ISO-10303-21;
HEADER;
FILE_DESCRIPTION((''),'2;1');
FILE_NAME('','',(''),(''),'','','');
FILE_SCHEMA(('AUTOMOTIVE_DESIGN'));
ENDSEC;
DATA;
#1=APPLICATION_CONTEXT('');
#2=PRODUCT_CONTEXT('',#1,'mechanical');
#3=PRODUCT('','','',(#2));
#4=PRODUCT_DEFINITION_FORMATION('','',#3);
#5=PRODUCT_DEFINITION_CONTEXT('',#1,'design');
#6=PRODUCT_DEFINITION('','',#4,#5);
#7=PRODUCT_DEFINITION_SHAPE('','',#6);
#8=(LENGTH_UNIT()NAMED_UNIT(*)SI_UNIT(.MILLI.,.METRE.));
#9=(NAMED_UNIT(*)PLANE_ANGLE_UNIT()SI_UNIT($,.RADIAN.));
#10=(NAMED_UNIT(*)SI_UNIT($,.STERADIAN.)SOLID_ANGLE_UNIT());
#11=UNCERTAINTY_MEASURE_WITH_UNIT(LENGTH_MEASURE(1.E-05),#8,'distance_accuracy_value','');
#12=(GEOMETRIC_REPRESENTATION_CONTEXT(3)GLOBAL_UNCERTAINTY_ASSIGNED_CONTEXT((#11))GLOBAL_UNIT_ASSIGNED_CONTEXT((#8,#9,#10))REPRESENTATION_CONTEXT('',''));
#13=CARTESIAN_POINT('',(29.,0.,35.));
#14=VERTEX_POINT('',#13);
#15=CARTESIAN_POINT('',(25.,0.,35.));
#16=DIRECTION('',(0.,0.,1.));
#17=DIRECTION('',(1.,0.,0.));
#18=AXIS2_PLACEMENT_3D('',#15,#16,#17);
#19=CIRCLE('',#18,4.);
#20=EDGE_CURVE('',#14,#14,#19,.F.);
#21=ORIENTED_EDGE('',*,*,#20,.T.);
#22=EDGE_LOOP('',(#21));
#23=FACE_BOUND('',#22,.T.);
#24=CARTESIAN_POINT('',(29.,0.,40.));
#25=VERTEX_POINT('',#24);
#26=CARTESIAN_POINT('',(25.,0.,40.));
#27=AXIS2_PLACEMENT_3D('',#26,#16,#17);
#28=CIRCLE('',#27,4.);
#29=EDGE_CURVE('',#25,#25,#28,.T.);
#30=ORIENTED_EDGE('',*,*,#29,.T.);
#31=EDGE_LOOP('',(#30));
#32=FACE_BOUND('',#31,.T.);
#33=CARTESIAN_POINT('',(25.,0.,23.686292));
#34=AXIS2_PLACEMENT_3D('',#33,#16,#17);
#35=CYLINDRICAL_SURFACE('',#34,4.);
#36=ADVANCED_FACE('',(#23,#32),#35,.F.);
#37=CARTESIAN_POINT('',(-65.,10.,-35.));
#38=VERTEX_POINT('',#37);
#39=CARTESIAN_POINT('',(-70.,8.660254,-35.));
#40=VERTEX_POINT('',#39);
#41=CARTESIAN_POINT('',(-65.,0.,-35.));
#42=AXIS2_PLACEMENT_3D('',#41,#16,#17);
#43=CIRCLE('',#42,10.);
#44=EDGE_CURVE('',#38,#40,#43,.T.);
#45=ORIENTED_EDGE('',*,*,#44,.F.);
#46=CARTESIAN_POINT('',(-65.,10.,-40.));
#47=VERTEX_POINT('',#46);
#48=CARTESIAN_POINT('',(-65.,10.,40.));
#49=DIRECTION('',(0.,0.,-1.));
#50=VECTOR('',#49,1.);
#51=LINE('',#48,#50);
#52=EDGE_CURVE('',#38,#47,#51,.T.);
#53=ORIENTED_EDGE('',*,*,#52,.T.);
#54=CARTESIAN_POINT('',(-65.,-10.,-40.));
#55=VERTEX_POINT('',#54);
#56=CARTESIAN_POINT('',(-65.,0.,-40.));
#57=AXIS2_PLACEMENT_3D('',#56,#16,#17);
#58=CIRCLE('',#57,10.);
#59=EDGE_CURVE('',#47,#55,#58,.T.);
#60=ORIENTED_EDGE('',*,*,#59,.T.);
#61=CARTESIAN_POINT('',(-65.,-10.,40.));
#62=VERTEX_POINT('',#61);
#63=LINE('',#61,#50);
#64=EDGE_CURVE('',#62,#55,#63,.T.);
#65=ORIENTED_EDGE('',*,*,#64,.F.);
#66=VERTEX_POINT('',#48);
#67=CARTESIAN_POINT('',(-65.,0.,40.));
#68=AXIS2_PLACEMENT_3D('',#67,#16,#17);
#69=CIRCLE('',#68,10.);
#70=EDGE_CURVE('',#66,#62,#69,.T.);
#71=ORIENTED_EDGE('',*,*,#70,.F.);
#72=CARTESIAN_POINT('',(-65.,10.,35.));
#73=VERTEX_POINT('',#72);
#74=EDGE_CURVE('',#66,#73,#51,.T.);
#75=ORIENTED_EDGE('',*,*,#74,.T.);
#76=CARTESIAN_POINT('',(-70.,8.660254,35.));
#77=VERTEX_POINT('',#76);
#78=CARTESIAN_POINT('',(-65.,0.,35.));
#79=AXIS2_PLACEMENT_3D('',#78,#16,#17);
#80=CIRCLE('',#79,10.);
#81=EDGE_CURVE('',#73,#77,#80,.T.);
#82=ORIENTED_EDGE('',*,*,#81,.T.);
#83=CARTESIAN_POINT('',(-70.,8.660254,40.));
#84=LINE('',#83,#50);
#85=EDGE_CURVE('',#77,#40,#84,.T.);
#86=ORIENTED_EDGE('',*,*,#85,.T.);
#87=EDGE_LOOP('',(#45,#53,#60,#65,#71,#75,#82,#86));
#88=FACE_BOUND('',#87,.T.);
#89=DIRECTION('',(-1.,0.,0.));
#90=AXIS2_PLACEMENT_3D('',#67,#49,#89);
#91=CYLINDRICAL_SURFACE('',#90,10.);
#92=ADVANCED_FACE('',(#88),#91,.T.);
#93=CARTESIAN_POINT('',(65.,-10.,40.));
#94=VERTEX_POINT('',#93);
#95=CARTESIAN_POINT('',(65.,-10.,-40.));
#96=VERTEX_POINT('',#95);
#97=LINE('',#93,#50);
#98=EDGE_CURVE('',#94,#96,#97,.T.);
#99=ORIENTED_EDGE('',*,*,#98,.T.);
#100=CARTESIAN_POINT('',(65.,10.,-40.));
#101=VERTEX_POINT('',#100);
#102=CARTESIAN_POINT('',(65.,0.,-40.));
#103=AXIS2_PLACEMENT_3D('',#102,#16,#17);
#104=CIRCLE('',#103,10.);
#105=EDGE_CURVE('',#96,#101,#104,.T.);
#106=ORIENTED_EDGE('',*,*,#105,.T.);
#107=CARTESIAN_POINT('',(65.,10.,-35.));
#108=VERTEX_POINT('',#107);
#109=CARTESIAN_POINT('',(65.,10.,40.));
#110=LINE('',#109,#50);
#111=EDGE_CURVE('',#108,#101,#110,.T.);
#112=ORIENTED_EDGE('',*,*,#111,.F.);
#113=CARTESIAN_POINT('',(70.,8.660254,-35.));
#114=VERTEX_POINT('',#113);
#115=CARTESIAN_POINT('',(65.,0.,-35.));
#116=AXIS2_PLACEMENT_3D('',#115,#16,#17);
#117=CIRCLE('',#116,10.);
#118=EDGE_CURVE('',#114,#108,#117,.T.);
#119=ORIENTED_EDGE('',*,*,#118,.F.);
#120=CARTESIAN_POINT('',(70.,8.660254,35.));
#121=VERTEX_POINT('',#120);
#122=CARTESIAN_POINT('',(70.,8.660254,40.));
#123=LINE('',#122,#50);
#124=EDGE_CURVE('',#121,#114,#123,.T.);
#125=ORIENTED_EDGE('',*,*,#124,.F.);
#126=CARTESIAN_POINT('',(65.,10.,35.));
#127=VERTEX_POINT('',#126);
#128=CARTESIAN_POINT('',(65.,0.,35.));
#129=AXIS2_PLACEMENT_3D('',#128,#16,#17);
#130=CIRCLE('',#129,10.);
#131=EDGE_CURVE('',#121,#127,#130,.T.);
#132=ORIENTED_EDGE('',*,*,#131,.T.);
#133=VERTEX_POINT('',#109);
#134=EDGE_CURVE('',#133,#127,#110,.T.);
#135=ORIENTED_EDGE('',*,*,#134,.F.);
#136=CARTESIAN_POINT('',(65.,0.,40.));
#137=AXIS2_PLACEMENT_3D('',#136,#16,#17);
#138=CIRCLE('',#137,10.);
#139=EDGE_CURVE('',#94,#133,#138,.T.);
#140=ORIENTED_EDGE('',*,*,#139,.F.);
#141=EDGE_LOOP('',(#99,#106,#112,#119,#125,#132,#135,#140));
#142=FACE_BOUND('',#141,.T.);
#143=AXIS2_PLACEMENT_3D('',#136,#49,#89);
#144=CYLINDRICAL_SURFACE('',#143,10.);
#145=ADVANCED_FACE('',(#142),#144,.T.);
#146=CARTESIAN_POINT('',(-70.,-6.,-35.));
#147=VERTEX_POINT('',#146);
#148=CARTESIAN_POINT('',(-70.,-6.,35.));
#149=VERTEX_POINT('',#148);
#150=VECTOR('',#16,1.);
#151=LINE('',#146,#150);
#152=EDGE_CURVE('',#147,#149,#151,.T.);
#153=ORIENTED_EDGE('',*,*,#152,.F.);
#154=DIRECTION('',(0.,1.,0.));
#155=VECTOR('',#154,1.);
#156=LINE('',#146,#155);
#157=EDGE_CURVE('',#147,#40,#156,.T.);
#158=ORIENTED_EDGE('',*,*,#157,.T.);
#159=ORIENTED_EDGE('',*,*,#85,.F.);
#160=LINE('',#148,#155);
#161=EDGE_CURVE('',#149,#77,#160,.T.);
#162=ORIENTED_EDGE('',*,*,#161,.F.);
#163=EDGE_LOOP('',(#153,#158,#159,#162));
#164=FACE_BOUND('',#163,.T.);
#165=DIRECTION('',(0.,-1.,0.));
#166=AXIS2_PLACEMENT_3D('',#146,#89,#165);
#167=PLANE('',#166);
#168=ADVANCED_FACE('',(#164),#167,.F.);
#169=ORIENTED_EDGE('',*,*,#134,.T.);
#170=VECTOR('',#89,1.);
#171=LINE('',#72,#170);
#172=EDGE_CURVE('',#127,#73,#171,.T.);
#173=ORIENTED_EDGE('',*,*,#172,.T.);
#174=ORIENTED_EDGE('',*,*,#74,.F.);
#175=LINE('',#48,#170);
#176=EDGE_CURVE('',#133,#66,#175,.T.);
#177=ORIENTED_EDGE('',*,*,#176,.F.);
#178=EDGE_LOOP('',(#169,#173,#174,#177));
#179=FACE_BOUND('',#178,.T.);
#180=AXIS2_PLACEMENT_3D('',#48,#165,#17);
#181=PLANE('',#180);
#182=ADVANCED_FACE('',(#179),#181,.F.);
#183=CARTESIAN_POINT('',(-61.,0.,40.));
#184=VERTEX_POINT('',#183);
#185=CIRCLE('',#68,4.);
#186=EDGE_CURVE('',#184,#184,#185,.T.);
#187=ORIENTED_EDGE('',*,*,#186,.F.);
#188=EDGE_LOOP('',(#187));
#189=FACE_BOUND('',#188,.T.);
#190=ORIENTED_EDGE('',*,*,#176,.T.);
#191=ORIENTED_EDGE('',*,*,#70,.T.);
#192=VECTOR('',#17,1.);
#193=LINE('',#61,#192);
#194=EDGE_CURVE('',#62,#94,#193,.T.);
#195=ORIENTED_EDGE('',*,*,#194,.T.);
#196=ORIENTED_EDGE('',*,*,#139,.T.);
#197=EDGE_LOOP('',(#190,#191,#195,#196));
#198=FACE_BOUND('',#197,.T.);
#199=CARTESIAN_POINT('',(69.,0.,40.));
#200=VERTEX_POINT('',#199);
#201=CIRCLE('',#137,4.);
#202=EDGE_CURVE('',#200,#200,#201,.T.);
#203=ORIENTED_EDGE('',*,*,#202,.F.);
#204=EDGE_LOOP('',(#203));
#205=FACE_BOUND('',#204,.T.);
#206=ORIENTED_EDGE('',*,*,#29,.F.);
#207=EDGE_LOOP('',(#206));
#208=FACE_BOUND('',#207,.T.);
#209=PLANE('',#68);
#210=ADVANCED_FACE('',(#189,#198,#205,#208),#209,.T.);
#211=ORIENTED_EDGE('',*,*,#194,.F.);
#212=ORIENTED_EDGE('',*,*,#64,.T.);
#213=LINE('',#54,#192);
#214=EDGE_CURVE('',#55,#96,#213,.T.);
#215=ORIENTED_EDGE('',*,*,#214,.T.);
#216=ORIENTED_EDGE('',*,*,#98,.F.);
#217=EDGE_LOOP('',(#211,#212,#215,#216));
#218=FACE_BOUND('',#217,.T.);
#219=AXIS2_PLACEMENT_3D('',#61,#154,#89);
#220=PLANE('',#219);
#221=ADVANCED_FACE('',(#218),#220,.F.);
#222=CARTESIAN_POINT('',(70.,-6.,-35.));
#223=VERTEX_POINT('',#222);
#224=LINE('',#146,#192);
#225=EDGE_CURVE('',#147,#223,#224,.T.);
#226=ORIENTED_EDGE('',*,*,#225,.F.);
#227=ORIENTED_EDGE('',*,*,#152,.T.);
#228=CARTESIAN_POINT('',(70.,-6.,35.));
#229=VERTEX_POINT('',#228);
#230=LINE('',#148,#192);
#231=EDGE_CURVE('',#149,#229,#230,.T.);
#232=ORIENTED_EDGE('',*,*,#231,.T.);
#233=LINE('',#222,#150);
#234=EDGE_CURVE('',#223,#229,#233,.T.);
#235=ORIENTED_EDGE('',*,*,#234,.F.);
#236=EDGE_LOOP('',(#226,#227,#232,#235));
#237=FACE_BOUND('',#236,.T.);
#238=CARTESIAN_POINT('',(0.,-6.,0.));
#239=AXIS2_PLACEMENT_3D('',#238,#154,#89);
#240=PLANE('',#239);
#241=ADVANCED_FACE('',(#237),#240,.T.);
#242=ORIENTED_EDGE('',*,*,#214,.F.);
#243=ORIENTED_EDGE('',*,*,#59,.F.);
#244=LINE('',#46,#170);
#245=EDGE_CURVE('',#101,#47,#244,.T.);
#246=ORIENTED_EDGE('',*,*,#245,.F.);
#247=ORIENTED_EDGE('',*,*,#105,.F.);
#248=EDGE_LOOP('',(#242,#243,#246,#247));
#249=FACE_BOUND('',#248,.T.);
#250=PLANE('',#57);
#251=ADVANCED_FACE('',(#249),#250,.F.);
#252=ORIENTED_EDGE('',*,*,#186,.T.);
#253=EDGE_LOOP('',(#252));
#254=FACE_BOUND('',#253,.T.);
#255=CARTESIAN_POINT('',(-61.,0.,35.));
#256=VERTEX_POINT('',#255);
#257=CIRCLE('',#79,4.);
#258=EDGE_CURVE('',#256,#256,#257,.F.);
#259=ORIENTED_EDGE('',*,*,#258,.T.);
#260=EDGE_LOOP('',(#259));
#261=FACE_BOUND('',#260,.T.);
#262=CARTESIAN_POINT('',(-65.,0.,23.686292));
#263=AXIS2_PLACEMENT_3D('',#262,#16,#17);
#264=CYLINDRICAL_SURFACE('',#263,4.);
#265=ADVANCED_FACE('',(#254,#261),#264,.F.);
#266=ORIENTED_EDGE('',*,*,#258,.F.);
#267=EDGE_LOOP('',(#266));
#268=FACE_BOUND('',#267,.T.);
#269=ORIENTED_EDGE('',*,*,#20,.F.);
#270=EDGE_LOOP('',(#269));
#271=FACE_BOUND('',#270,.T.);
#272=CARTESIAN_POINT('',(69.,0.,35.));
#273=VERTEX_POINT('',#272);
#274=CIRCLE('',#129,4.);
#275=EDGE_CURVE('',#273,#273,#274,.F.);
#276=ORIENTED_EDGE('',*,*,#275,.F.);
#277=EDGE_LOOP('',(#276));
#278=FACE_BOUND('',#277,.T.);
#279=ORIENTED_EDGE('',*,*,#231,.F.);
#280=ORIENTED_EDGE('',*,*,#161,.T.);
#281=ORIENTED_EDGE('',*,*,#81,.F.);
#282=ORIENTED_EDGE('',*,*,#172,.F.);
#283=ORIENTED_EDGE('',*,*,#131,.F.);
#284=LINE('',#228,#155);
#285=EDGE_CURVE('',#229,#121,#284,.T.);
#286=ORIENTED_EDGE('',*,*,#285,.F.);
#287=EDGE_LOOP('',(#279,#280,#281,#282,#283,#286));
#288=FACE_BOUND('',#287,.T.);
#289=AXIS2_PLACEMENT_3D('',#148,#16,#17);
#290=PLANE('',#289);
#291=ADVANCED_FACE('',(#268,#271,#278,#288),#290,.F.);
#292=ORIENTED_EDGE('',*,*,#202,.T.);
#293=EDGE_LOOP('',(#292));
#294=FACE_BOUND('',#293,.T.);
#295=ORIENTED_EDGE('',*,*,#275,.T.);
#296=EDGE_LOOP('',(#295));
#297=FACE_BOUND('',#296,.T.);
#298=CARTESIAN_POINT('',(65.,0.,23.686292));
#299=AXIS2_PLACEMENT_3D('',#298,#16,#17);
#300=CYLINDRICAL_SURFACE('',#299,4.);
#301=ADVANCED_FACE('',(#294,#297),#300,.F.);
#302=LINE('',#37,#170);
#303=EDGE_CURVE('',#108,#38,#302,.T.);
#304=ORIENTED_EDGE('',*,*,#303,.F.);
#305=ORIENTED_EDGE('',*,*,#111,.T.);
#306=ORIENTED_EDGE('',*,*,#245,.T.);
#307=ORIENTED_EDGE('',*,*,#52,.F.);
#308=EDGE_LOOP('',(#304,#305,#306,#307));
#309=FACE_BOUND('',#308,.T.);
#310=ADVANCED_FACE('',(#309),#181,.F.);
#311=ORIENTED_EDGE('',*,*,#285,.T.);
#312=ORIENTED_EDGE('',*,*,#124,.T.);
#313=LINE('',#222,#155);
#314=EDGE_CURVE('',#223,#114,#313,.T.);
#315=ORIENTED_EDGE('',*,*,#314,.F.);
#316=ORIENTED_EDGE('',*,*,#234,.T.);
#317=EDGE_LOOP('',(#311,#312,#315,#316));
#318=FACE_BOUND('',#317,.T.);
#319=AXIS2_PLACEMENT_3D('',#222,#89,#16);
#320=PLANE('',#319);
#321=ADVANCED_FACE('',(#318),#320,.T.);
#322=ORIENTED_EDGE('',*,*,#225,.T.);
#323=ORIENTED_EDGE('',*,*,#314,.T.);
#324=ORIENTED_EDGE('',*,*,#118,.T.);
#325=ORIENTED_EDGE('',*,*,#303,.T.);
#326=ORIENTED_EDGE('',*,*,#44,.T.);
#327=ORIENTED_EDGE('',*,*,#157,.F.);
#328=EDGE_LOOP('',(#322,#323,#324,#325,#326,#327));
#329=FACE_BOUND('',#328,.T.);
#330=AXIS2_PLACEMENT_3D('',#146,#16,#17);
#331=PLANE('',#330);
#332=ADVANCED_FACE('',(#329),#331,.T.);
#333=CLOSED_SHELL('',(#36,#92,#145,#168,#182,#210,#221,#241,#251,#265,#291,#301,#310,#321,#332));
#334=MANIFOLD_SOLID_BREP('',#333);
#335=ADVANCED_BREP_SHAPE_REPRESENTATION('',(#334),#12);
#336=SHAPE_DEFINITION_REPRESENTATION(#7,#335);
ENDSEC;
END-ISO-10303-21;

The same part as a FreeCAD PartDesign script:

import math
import FreeCAD as App
import Part
import Sketcher
from FreeCAD import Vector

doc = App.newDocument("Part")
body = doc.addObject("PartDesign::Body", "Body")

# Sketch on XY plane
sketch1 = body.newObject("Sketcher::SketchObject", "Sketch")
sketch1.AttachmentSupport = (doc.getObject("XY_Plane"), [""])
sketch1.MapMode = "FlatFace"
sketch1.addGeometry([
    Part.LineSegment(Vector(65, 10, 0), Vector(-65, 10, 0)),
    Part.ArcOfCircle(Part.Circle(Vector(-65, 0, 0), Vector(0, 0, 1), 10), math.radians(90), math.radians(270)),
    Part.LineSegment(Vector(-65, -10, 0), Vector(65, -10, 0)),
    Part.ArcOfCircle(Part.Circle(Vector(65, 0, 0), Vector(0, 0, 1), 10), math.radians(-90), math.radians(90)),
], False)
sketch1.addConstraint([
    Sketcher.Constraint("Tangent", 0, 2, 1, 1),
    Sketcher.Constraint("Tangent", 1, 2, 2, 1),
    Sketcher.Constraint("Tangent", 2, 2, 3, 1),
    Sketcher.Constraint("Tangent", 3, 2, 0, 1),
    Sketcher.Constraint("Horizontal", 0),
    Sketcher.Constraint("Horizontal", 2),
    Sketcher.Constraint("Symmetric", 1, 3, 3, 3, -1, 1),
    Sketcher.Constraint("Radius", 1, 10.0),
    Sketcher.Constraint("DistanceX", 0, 2, 0, 1, 130.0),
])
pad1 = body.newObject("PartDesign::Pad", "Pad")
pad1.Profile = sketch1
pad1.Type = "TwoLengths"
pad1.Length = 40
pad1.Length2 = 40

# Sketch on XZ plane
sketch2 = body.newObject("Sketcher::SketchObject", "Sketch001")
sketch2.AttachmentSupport = (doc.getObject("XZ_Plane"), [""])
sketch2.MapMode = "FlatFace"
sketch2.AttachmentOffset = App.Placement(Vector(0, 0, -10), App.Rotation())
sketch2.addGeometry([
    Part.LineSegment(Vector(-70, -35, 0), Vector(-70, 35, 0)),
    Part.LineSegment(Vector(-70, 35, 0), Vector(70, 35, 0)),
    Part.LineSegment(Vector(70, 35, 0), Vector(70, -35, 0)),
    Part.LineSegment(Vector(70, -35, 0), Vector(-70, -35, 0)),
], False)
sketch2.addConstraint([
    Sketcher.Constraint("Coincident", 0, 2, 1, 1),
    Sketcher.Constraint("Coincident", 1, 2, 2, 1),
    Sketcher.Constraint("Coincident", 2, 2, 3, 1),
    Sketcher.Constraint("Coincident", 3, 2, 0, 1),
    Sketcher.Constraint("Vertical", 0),
    Sketcher.Constraint("Horizontal", 1),
    Sketcher.Constraint("Vertical", 2),
    Sketcher.Constraint("Horizontal", 3),
    Sketcher.Constraint("Symmetric", 0, 2, 2, 2, -1, 1),
    Sketcher.Constraint("DistanceX", 1, 1, 1, 2, 140.0),
    Sketcher.Constraint("DistanceY", 0, 1, 0, 2, 70.0),
])
pocket1 = body.newObject("PartDesign::Pocket", "Pocket")
pocket1.Profile = sketch2
pocket1.Length = 16
pocket1.Reversed = True

# Sketch on XY plane
sketch3 = body.newObject("Sketcher::SketchObject", "Sketch002")
sketch3.AttachmentSupport = (doc.getObject("XY_Plane"), [""])
sketch3.MapMode = "FlatFace"
sketch3.AttachmentOffset = App.Placement(Vector(0, 0, 40), App.Rotation())
sketch3.addGeometry([
    Part.Circle(Vector(65, 0, 0), Vector(0, 0, 1), 4),
    Part.Circle(Vector(-65, 0, 0), Vector(0, 0, 1), 4),
    Part.Circle(Vector(25, 0, 0), Vector(0, 0, 1), 4),
], False)
sketch3.addConstraint([
    Sketcher.Constraint("Equal", 0, 1),
    Sketcher.Constraint("Equal", 1, 2),
    Sketcher.Constraint("Symmetric", 0, 3, 1, 3, -1, 1),
    Sketcher.Constraint("PointOnObject", 0, 3, -1),
    Sketcher.Constraint("PointOnObject", 2, 3, -1),
    Sketcher.Constraint("Diameter", 0, 8.0),
    Sketcher.Constraint("DistanceX", -1, 1, 0, 3, 65.0),
    Sketcher.Constraint("DistanceX", -1, 1, 2, 3, 25.0),
])
pocket2 = body.newObject("PartDesign::Pocket", "Pocket001")
pocket2.Profile = sketch3
pocket2.Length = 5

doc.recompute()
